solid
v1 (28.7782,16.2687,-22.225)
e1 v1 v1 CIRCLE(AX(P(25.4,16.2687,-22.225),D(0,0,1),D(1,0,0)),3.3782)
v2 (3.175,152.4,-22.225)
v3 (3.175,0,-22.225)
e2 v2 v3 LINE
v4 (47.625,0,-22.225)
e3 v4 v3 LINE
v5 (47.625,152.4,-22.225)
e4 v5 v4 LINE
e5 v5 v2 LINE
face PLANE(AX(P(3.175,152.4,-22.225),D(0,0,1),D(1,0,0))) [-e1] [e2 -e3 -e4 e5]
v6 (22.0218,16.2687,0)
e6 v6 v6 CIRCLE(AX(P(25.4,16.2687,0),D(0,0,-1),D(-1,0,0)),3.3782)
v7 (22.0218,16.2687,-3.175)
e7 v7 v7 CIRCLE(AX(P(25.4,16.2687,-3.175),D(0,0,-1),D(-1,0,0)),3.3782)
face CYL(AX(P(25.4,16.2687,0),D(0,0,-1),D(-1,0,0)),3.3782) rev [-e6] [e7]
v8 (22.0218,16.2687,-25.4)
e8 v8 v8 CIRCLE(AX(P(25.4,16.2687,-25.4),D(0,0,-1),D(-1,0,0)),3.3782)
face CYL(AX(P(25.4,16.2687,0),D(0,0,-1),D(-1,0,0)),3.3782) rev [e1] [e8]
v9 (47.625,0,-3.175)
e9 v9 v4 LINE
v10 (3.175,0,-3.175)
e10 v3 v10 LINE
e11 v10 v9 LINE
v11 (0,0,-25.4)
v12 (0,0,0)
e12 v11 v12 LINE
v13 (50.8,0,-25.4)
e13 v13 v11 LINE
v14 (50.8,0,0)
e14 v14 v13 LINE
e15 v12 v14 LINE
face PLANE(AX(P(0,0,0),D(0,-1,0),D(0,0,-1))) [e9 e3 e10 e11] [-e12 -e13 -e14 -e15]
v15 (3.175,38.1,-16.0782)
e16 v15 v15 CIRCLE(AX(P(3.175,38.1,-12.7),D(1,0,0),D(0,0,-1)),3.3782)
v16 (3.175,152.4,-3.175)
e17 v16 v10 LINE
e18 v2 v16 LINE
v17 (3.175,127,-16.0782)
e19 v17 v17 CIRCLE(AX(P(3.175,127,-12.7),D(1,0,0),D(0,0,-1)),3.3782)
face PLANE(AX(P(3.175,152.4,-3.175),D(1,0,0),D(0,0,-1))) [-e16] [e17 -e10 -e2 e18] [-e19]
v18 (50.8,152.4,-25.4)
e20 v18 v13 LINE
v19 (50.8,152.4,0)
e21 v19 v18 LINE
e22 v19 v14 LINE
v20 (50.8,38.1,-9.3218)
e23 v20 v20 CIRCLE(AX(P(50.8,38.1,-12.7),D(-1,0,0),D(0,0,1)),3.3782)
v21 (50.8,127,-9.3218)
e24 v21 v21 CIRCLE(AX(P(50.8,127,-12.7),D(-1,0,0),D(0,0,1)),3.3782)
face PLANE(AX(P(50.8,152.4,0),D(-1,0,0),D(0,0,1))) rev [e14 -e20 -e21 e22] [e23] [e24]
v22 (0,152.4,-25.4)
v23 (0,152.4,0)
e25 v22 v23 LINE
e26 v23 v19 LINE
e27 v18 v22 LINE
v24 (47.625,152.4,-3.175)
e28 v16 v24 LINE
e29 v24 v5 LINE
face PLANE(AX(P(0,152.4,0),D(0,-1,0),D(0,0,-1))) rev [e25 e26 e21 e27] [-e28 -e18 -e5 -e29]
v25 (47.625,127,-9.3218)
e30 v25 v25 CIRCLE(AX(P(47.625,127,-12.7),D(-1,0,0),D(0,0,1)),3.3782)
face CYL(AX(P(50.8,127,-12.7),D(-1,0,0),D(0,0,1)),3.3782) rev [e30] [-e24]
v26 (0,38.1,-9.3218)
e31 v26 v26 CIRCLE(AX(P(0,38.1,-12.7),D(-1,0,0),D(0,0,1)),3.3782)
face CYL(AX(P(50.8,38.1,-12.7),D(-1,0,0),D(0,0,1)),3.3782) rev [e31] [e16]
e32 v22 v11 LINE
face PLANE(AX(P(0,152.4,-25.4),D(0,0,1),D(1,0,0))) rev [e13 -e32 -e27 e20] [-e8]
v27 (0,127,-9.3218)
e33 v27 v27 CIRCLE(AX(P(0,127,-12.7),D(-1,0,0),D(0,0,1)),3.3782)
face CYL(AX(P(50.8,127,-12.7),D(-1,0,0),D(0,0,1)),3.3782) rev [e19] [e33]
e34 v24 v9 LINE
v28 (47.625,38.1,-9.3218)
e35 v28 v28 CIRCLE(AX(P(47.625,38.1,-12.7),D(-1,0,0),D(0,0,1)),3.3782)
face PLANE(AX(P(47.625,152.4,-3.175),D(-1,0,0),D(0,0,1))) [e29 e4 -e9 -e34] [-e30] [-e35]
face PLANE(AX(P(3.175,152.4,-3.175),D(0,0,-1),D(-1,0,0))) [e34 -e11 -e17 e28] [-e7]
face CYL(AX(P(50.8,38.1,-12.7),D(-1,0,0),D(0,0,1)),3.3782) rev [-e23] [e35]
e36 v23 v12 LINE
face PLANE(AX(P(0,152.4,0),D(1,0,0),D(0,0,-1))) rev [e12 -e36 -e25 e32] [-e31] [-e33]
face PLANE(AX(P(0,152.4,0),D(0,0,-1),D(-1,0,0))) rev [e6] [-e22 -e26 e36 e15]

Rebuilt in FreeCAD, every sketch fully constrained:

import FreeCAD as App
import Part
import Sketcher
Q = App.Units.Quantity

doc = App.newDocument("Part")
params = doc.addObject("Spreadsheet::Sheet", "Params")
for row, (alias, value) in enumerate([
    ("sketch1_width", "2 in"),
    ("sketch1_height", "1 in"),
    ("sketch1_width2", "1.75 in"),
    ("sketch1_height2", "0.75 in"),
    ("pad1_length", "6 in"),
    ("sketch2_diameter", "0.266 in"),
    ("sketch3_diameter", "0.266 in"),
], start=1):
    params.set(f"A{row}", alias)
    params.set(f"B{row}", "=" + value)
    params.setAlias(f"B{row}", alias)

body = doc.addObject("PartDesign::Body", "Body")

sketch1 = body.newObject("Sketcher::SketchObject", "Sketch")
sketch1.AttachmentSupport = (doc.getObject("XZ_Plane"), [""])
sketch1.MapMode = "FlatFace"
sketch1.addGeometry([
    Part.LineSegment(App.Vector(0, -25, 0), App.Vector(0, 0, 0)),
    Part.LineSegment(App.Vector(0, 0, 0), App.Vector(51, 0, 0)),
    Part.LineSegment(App.Vector(51, 0, 0), App.Vector(51, -25, 0)),
    Part.LineSegment(App.Vector(51, -25, 0), App.Vector(0, -25, 0)),
    Part.LineSegment(App.Vector(48, -3, 0), App.Vector(3, -3, 0)),
    Part.LineSegment(App.Vector(3, -3, 0), App.Vector(3, -22, 0)),
    Part.LineSegment(App.Vector(3, -22, 0), App.Vector(48, -22, 0)),
    Part.LineSegment(App.Vector(48, -22, 0), App.Vector(48, -3, 0)),
], False)
sketch1.addConstraint([
    Sketcher.Constraint("Coincident", 0, 2, 1, 1),
    Sketcher.Constraint("Coincident", 1, 2, 2, 1),
    Sketcher.Constraint("Coincident", 2, 2, 3, 1),
    Sketcher.Constraint("Coincident", 3, 2, 0, 1),
    Sketcher.Constraint("Coincident", 4, 2, 5, 1),
    Sketcher.Constraint("Coincident", 5, 2, 6, 1),
    Sketcher.Constraint("Coincident", 6, 2, 7, 1),
    Sketcher.Constraint("Coincident", 7, 2, 4, 1),
    Sketcher.Constraint("Vertical", 0),
    Sketcher.Constraint("Horizontal", 1),
    Sketcher.Constraint("Vertical", 2),
    Sketcher.Constraint("Horizontal", 3),
    Sketcher.Constraint("Horizontal", 4),
    Sketcher.Constraint("Vertical", 5),
    Sketcher.Constraint("Horizontal", 6),
    Sketcher.Constraint("Vertical", 7),
    Sketcher.Constraint("Coincident", 0, 2, -1, 1),
    Sketcher.Constraint("DistanceX", 1, 1, 1, 2, Q("2 in")),
    Sketcher.Constraint("DistanceY", 0, 1, 0, 2, Q("1 in")),
    Sketcher.Constraint("DistanceX", 4, 2, 4, 1, Q("1.75 in")),
    Sketcher.Constraint("DistanceY", 5, 2, 5, 1, Q("0.75 in")),
    Sketcher.Constraint("DistanceX", -1, 1, 4, 2, Q("0.125 in")),
    Sketcher.Constraint("DistanceY", 4, 2, -1, 1, Q("0.125 in")),
])
sketch1.setExpression("Constraints[17]", "Params.sketch1_width")
sketch1.setExpression("Constraints[18]", "Params.sketch1_height")
sketch1.setExpression("Constraints[19]", "Params.sketch1_width2")
sketch1.setExpression("Constraints[20]", "Params.sketch1_height2")
pad1 = body.newObject("PartDesign::Pad", "Pad")
pad1.Profile = sketch1
pad1.setExpression("Length", "Params.pad1_length")
pad1.Reversed = True

sketch2 = body.newObject("Sketcher::SketchObject", "Sketch001")
sketch2.AttachmentSupport = (doc.getObject("YZ_Plane"), [""])
sketch2.MapMode = "FlatFace"
sketch2.addGeometry([
    Part.Circle(App.Vector(127, -12.7, 0), App.Vector(0, 0, 1), 3.4),
    Part.Circle(App.Vector(38.1, -12.7, 0), App.Vector(0, 0, 1), 3.4),
], False)
sketch2.addConstraint([
    Sketcher.Constraint("Equal", 0, 1),
    Sketcher.Constraint("Horizontal", 0, 3, 1, 3),
    Sketcher.Constraint("Diameter", 0, Q("0.266 in")),
    Sketcher.Constraint("DistanceX", -1, 1, 0, 3, Q("5 in")),
    Sketcher.Constraint("DistanceY", 0, 3, -1, 1, Q("0.5 in")),
    Sketcher.Constraint("DistanceX", -1, 1, 1, 3, Q("1.5 in")),
])
sketch2.setExpression("Constraints[2]", "Params.sketch2_diameter")
pocket1 = body.newObject("PartDesign::Pocket", "Pocket")
pocket1.Profile = sketch2
pocket1.Type = "ThroughAll"
pocket1.Reversed = True

sketch3 = body.newObject("Sketcher::SketchObject", "Sketch002")
sketch3.AttachmentSupport = (doc.getObject("XY_Plane"), [""])
sketch3.MapMode = "FlatFace"
sketch3.AttachmentOffset = App.Placement(App.Vector(0, 0, -1 * 25.4), App.Rotation())
sketch3.addGeometry(Part.Circle(App.Vector(25.4, 16.3, 0), App.Vector(0, 0, 1), 3.4), False)
sketch3.addConstraint([
    Sketcher.Constraint("Diameter", 0, Q("0.266 in")),
    Sketcher.Constraint("DistanceX", -1, 1, 0, 3, Q("1 in")),
    Sketcher.Constraint("DistanceY", -1, 1, 0, 3, Q("0.6405 in")),
])
sketch3.setExpression("Constraints[0]", "Params.sketch3_diameter")
pocket2 = body.newObject("PartDesign::Pocket", "Pocket001")
pocket2.Profile = sketch3
pocket2.Type = "ThroughAll"
pocket2.Reversed = True

doc.recompute()
